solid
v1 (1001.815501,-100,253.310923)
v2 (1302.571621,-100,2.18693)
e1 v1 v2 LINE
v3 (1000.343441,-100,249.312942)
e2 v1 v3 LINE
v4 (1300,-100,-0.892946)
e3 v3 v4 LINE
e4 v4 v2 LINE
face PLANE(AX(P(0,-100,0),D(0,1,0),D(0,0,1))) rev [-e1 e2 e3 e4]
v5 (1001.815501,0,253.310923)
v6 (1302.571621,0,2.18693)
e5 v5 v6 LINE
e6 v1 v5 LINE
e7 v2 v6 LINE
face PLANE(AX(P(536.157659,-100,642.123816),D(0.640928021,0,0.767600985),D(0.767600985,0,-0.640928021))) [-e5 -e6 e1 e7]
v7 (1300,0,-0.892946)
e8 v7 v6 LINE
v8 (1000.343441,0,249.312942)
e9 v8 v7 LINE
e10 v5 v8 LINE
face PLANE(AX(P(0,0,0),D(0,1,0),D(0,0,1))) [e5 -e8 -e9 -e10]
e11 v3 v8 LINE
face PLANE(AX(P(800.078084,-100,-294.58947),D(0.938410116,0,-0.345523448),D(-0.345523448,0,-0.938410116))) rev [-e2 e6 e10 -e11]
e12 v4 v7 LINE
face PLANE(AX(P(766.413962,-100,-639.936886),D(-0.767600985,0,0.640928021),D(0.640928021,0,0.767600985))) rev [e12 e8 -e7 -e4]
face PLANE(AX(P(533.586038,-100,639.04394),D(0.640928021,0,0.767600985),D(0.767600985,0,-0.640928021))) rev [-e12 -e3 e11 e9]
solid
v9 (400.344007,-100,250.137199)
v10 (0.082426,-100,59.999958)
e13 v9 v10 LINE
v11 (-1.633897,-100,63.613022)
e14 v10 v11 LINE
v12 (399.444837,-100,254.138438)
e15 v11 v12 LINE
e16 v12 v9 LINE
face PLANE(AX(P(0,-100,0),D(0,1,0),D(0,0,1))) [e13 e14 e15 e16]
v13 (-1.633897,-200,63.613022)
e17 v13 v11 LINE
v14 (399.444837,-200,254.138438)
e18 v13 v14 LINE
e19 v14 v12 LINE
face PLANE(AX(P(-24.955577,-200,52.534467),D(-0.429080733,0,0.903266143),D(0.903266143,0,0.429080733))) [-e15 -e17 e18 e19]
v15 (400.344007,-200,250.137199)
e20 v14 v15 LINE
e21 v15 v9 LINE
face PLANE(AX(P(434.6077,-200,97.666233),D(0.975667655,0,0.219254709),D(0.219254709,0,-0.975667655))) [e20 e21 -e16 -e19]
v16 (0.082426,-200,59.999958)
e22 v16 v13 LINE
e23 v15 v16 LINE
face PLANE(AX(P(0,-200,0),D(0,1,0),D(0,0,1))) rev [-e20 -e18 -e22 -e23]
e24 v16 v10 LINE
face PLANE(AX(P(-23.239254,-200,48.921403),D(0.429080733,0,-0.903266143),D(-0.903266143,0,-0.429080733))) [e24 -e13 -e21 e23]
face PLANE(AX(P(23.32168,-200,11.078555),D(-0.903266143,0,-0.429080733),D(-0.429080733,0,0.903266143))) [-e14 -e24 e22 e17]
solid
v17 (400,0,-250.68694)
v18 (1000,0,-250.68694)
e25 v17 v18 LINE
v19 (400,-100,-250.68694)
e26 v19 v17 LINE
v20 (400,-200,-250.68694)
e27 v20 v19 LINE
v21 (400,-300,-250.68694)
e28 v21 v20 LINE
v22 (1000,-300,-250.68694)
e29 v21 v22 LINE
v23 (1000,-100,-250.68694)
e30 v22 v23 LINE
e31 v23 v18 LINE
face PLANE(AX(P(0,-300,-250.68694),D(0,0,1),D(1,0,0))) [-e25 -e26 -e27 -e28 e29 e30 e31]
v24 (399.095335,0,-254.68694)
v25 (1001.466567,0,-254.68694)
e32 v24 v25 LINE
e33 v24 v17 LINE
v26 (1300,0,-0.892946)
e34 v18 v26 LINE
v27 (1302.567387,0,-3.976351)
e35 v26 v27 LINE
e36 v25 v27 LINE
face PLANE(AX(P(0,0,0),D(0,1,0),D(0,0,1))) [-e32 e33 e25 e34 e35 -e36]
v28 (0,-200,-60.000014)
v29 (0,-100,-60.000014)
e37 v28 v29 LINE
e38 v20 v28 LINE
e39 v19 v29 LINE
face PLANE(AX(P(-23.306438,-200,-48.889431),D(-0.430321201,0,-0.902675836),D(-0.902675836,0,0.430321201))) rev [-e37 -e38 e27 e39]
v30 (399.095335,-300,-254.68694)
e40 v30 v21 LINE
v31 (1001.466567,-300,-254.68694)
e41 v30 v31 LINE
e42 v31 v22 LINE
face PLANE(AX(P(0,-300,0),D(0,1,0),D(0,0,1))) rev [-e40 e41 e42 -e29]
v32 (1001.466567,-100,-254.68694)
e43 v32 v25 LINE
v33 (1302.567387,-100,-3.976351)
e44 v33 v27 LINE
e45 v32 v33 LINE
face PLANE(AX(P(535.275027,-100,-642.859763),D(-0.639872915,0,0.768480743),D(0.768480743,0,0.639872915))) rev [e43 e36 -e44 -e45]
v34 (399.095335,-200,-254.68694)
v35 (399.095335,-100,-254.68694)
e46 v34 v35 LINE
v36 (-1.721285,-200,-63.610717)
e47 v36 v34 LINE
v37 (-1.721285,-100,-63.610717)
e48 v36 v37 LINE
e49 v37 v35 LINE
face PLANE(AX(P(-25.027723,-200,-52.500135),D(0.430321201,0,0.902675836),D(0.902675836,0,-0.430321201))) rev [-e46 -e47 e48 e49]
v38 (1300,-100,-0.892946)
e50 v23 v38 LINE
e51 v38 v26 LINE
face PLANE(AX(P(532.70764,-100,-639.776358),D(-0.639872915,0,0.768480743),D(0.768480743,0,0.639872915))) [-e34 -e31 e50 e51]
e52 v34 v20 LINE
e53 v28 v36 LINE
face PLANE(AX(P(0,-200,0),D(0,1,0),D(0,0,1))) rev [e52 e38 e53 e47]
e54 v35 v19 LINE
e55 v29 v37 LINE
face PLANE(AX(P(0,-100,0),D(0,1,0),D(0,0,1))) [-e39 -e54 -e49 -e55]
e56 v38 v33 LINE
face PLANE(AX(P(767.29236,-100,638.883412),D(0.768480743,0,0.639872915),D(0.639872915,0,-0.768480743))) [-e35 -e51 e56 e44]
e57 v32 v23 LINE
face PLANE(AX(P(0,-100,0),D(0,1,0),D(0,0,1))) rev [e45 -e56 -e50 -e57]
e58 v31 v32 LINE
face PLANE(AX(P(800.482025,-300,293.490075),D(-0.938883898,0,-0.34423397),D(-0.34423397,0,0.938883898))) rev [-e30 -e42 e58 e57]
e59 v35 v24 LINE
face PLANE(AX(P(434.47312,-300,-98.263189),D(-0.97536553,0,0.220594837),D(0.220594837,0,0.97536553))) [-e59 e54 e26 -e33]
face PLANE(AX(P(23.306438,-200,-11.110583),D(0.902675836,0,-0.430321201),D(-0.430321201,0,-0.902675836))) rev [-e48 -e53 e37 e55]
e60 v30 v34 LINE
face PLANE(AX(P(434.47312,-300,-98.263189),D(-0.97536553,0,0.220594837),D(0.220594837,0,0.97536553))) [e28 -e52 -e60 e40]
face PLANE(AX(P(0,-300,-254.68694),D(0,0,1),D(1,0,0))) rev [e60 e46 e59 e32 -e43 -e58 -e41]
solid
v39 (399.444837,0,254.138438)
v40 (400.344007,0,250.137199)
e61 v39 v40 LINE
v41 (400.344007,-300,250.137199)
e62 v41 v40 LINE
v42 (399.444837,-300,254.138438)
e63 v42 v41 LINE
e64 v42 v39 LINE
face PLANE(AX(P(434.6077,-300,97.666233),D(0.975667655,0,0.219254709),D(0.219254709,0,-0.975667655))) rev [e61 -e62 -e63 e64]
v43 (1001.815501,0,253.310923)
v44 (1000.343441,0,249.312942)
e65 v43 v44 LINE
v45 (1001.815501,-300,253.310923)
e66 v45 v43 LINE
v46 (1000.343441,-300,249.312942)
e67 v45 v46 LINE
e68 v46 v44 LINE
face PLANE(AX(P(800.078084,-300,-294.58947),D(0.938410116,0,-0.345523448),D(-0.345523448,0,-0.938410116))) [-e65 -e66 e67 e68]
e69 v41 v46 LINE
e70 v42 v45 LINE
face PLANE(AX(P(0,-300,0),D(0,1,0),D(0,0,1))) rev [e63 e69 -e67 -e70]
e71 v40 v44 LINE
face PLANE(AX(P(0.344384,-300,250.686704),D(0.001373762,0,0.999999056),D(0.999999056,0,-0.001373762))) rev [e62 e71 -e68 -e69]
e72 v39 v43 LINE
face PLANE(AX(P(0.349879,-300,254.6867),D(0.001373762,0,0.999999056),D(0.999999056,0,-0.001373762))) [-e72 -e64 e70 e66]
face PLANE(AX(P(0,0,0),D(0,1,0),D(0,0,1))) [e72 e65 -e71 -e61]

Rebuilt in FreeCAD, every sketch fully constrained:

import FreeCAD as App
import Part
import Sketcher

V = App.Vector

doc = App.newDocument("Part")
body = doc.addObject("PartDesign::Body", "Body")
body.AllowCompound = True

# Sketch on XZ plane
sketch1 = doc.addObject("Sketcher::SketchObject", "Sketch")
body.addObject(sketch1)
sketch1.AttachmentSupport = (doc.XZ_Plane, [""])
sketch1.MapMode = "FlatFace"
sketch1.addGeometry([
    Part.LineSegment(V(1001.5, -254.7, 0), V(399.1, -254.7, 0)),
    Part.LineSegment(V(399.1, -254.7, 0), V(400, -250.7, 0)),
    Part.LineSegment(V(400, -250.7, 0), V(1000, -250.7, 0)),
    Part.LineSegment(V(1000, -250.7, 0), V(1001.5, -254.7, 0)),
], False)
sketch1.addConstraint([
    Sketcher.Constraint("Coincident", 0, 2, 1, 1),
    Sketcher.Constraint("Coincident", 1, 2, 2, 1),
    Sketcher.Constraint("Coincident", 2, 2, 3, 1),
    Sketcher.Constraint("Coincident", 3, 2, 0, 1),
    Sketcher.Constraint("Horizontal", 0),
    Sketcher.Constraint("Horizontal", 2),
    Sketcher.Constraint("DistanceX", 2, 1, 2, 2, 600.0),
    Sketcher.Constraint("DistanceX", -1, 1, 1, 2, 400.0),
    Sketcher.Constraint("DistanceY", 0, 2, 1, 2, 4.0),
    Sketcher.Constraint("DistanceX", 0, 2, 0, 1, 602.371232),
    Sketcher.Constraint("DistanceY", 0, 2, -1, 1, 254.68694),
    Sketcher.Constraint("Distance", 1, 4.101027),
])
pad1 = doc.addObject("PartDesign::Pad", "Pad")
body.addObject(pad1)
pad1.Profile = sketch1
pad1.Length = 300

# Sketch on XZ plane
sketch2 = doc.addObject("Sketcher::SketchObject", "Sketch001")
body.addObject(sketch2)
sketch2.AttachmentSupport = (doc.XZ_Plane, [""])
sketch2.MapMode = "FlatFace"
sketch2.addGeometry([
    Part.LineSegment(V(1302.6, 2.2, 0), V(1300, -0.9, 0)),  # 0
    Part.LineSegment(V(1300, -0.9, 0), V(1000.3, 249.3, 0)),  # 1
    Part.LineSegment(V(1000.3, 249.3, 0), V(1001.8, 253.3, 0)),  # 2
    Part.LineSegment(V(1001.8, 253.3, 0), V(1302.6, 2.2, 0)),  # 3
    Part.LineSegment(V(1302.6, -4, 0), V(1001.5, -254.7, 0)),  # 4
    Part.LineSegment(V(1001.5, -254.7, 0), V(1000, -250.7, 0)),  # 5
    Part.LineSegment(V(1000, -250.7, 0), V(1300, -0.9, 0)),  # 6
    Part.LineSegment(V(1300, -0.9, 0), V(1302.6, -4, 0)),  # 7
], False)
sketch2.addConstraint([
    Sketcher.Constraint("Coincident", 0, 2, 1, 1),
    Sketcher.Constraint("Coincident", 1, 2, 2, 1),
    Sketcher.Constraint("Coincident", 2, 2, 3, 1),
    Sketcher.Constraint("Coincident", 3, 2, 0, 1),
    Sketcher.Constraint("Coincident", 4, 2, 5, 1),
    Sketcher.Constraint("Coincident", 5, 2, 6, 1),
    Sketcher.Constraint("Coincident", 6, 2, 7, 1),
    Sketcher.Constraint("Coincident", 7, 2, 4, 1),
    Sketcher.Constraint("Coincident", 6, 2, 0, 2),
    Sketcher.Constraint("Perpendicular", 0, 1),
    Sketcher.Constraint("Parallel", 1, 3),
    Sketcher.Constraint("Parallel", 4, 6),
    Sketcher.Constraint("Perpendicular", 6, 7),
    Sketcher.Constraint("Equal", 3, 4),
    Sketcher.Constraint("Equal", 2, 5),
    Sketcher.Constraint("Equal", 1, 6),
    Sketcher.Constraint("DistanceX", -1, 1, 0, 2, 1300.0),
    Sketcher.Constraint("DistanceX", -1, 1, 5, 2, 1000.0),
    Sketcher.Constraint("DistanceY", 4, 2, 5, 2, 4.0),
    Sketcher.Constraint("DistanceX", -1, 1, 2, 2, 1001.815501),
    Sketcher.Constraint("Distance", 0, 4.012339),
    Sketcher.Constraint("DistanceY", -1, 1, 1, 2, 249.312942),
    Sketcher.Constraint("DistanceY", -1, 1, 3, 2, 2.18693),
])
pad2 = doc.addObject("PartDesign::Pad", "Pad001")
body.addObject(pad2)
pad2.Profile = sketch2
pad2.Length = 100

# Sketch on XZ plane
sketch3 = doc.addObject("Sketcher::SketchObject", "Sketch002")
body.addObject(sketch3)
sketch3.AttachmentSupport = (doc.XZ_Plane, [""])
sketch3.MapMode = "FlatFace"
sketch3.AttachmentOffset = App.Placement(V(0, 0, 100), App.Rotation())
sketch3.addGeometry([
    Part.LineSegment(V(400, -250.7, 0), V(399.1, -254.7, 0)),  # 0
    Part.LineSegment(V(399.1, -254.7, 0), V(-1.7, -63.6, 0)),  # 1
    Part.LineSegment(V(-1.7, -63.6, 0), V(0, -60, 0)),  # 2
    Part.LineSegment(V(0, -60, 0), V(400, -250.7, 0)),  # 3
    Part.LineSegment(V(0.1, 60, 0), V(-1.6, 63.6, 0)),  # 4
    Part.LineSegment(V(-1.6, 63.6, 0), V(399.4, 254.1, 0)),  # 5
    Part.LineSegment(V(399.4, 254.1, 0), V(400.3, 250.1, 0)),  # 6
    Part.LineSegment(V(400.3, 250.1, 0), V(0.1, 60, 0)),  # 7
], False)
sketch3.addConstraint([
    Sketcher.Constraint("Coincident", 0, 2, 1, 1),
    Sketcher.Constraint("Coincident", 1, 2, 2, 1),
    Sketcher.Constraint("Coincident", 2, 2, 3, 1),
    Sketcher.Constraint("Coincident", 3, 2, 0, 1),
    Sketcher.Constraint("Coincident", 4, 2, 5, 1),
    Sketcher.Constraint("Coincident", 5, 2, 6, 1),
    Sketcher.Constraint("Coincident", 6, 2, 7, 1),
    Sketcher.Constraint("Coincident", 7, 2, 4, 1),
    Sketcher.Constraint("PointOnObject", 2, 2, -2),
    Sketcher.Constraint("Perpendicular", 1, 2),
    Sketcher.Constraint("Perpendicular", 2, 3),
    Sketcher.Constraint("Perpendicular", 4, 5),
    Sketcher.Constraint("Parallel", 5, 7),
    Sketcher.Constraint("Equal", 2, 4),
    Sketcher.Constraint("Equal", 1, 5),
    Sketcher.Constraint("Equal", 0, 6),
    Sketcher.Constraint("Distance", 2, 4.0),
    Sketcher.Constraint("DistanceX", -1, 1, 3, 2, 400.0),
    Sketcher.Constraint("DistanceY", 0, 2, 3, 2, 4.0),
    Sketcher.Constraint("DistanceY", -1, 1, 6, 2, 250.137199),
    Sketcher.Constraint("Distance", 3, 443.126961),
    Sketcher.Constraint("DistanceY", 0, 2, -1, 1, 254.68694),
    Sketcher.Constraint("DistanceY", 1, 2, 4, 2, 127.22374),
    Sketcher.Constraint("DistanceX", 4, 2, 0, 2, 400.729232),
])
pad3 = doc.addObject("PartDesign::Pad", "Pad002")
body.addObject(pad3)
pad3.Profile = sketch3
pad3.Length = 100
body2 = doc.addObject("PartDesign::Body", "Body001")

# Sketch on XZ plane
sketch4 = doc.addObject("Sketcher::SketchObject", "Sketch003")
body2.addObject(sketch4)
sketch4.AttachmentSupport = (doc.getObject("XZ_Plane001"), [""])
sketch4.MapMode = "FlatFace"
sketch4.addGeometry([
    Part.LineSegment(V(400.3, 250.1, 0), V(399.4, 254.1, 0)),
    Part.LineSegment(V(399.4, 254.1, 0), V(1001.8, 253.3, 0)),
    Part.LineSegment(V(1001.8, 253.3, 0), V(1000.3, 249.3, 0)),
    Part.LineSegment(V(1000.3, 249.3, 0), V(400.3, 250.1, 0)),
], False)
sketch4.addConstraint([
    Sketcher.Constraint("Coincident", 0, 2, 1, 1),
    Sketcher.Constraint("Coincident", 1, 2, 2, 1),
    Sketcher.Constraint("Coincident", 2, 2, 3, 1),
    Sketcher.Constraint("Coincident", 3, 2, 0, 1),
    Sketcher.Constraint("Parallel", 1, 3),
    Sketcher.Constraint("Distance", 3, 600.0),
    Sketcher.Constraint("DistanceX", -1, 1, 1, 2, 1001.815501),
    Sketcher.Constraint("DistanceY", -1, 1, 3, 2, 250.137199),
    Sketcher.Constraint("DistanceX", -1, 1, 2, 2, 1000.343441),
    Sketcher.Constraint("DistanceY", -1, 1, 2, 2, 249.312942),
    Sketcher.Constraint("DistanceY", 2, 2, 1, 2, 3.997982),
    Sketcher.Constraint("DistanceX", 0, 2, 3, 2, 0.899169),
])
pad4 = doc.addObject("PartDesign::Pad", "Pad003")
body2.addObject(pad4)
pad4.Profile = sketch4
pad4.Length = 300

doc.recompute()
